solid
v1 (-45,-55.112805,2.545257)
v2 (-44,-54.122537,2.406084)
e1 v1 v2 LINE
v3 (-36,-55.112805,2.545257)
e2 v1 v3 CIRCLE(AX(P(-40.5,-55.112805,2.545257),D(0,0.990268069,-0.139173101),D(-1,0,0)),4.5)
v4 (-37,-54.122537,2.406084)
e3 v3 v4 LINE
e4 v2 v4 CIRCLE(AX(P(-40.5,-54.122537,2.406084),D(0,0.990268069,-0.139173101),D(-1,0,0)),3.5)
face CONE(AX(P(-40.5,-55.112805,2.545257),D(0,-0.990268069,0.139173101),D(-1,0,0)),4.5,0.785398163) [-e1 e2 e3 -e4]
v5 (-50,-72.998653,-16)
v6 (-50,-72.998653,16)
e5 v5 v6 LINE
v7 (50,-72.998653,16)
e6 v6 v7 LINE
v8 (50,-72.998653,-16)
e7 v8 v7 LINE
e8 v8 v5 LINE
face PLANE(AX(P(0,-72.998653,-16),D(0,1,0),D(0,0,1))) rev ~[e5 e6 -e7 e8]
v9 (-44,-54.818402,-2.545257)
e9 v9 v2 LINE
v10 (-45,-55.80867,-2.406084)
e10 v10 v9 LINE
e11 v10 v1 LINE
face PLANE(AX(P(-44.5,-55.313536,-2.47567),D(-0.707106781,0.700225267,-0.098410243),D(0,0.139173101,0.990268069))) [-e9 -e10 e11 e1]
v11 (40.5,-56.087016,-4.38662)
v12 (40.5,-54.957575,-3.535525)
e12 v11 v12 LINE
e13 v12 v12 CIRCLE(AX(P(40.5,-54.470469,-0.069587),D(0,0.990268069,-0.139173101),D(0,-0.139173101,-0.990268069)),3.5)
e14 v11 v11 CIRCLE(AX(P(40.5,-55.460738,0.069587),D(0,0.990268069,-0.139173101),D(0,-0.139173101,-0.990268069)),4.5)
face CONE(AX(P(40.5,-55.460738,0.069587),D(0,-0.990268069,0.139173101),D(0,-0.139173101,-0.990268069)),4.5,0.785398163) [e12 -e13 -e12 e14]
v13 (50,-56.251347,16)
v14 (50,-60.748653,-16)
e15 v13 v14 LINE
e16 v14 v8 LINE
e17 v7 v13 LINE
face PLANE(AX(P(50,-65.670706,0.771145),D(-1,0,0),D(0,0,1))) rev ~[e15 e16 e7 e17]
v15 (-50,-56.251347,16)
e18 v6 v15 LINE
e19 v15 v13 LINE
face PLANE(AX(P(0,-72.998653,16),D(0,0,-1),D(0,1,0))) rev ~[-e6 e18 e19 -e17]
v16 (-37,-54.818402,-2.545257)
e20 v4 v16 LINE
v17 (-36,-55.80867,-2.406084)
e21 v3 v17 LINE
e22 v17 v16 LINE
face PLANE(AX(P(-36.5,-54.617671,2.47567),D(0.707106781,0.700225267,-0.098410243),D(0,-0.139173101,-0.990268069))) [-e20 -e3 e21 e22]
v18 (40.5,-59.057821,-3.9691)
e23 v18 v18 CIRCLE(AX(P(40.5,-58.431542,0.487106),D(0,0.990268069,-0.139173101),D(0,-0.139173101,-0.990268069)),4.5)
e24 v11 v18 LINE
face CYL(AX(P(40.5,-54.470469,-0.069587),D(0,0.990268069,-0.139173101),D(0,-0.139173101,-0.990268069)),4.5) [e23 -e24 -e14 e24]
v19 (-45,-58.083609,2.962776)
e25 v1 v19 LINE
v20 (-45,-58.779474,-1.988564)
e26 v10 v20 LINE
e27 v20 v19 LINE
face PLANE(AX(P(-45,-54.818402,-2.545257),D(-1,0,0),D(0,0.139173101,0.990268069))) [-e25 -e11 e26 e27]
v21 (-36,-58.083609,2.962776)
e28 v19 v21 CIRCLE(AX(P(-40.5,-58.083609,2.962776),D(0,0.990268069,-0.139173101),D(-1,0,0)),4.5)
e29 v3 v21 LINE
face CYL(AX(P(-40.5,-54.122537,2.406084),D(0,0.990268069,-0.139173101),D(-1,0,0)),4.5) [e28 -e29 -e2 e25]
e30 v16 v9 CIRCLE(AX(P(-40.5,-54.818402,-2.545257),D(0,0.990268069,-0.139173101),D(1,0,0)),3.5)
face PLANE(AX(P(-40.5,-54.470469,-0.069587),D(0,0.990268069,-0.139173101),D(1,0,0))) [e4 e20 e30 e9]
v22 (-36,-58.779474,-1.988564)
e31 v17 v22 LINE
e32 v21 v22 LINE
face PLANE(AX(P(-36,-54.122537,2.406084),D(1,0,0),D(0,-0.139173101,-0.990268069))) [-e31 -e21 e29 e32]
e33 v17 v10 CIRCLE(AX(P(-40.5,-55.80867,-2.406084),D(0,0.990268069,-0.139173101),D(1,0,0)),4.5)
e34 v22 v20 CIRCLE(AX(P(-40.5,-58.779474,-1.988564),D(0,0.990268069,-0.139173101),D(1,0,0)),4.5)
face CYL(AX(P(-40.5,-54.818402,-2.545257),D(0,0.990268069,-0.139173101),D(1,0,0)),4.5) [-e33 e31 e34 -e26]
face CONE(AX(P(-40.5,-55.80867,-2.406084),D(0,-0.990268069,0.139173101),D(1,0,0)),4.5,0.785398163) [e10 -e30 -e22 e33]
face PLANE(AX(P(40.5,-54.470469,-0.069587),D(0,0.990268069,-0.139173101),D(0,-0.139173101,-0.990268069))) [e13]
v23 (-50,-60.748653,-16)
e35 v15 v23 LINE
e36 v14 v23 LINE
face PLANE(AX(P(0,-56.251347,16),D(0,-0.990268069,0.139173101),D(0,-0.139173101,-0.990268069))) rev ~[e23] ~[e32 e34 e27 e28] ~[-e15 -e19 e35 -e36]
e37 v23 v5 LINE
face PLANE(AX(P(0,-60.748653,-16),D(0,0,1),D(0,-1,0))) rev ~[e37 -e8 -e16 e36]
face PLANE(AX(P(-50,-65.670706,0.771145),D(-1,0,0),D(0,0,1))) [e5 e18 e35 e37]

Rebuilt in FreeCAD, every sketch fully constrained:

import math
import FreeCAD as App
import Part
import Sketcher
from FreeCAD import Vector
Q = App.Units.Quantity


def edges_at(feature, points):
    """Names of the edges that pass closest to the given points."""
    edges = feature.Shape.Edges
    near = lambda p: min(range(len(edges)), key=lambda i: edges[i].distToShape(Part.Vertex(*p))[0])
    return sorted({f"Edge{near(p) + 1}" for p in points})


def add_polygon(sketch, points):
    """Adds a closed chain of lines whose ends are joined by coincident constraints."""
    first, n = sketch.GeometryCount, len(points)
    for a, b in zip(points, points[1:] + points[:1]):
        sketch.addGeometry(Part.LineSegment(App.Vector(*a, 0), App.Vector(*b, 0)), False)
    for i in range(n):
        sketch.addConstraint(Sketcher.Constraint("Coincident", first + i, 2, first + (i + 1) % n, 1))

doc = App.newDocument("Part")
body = doc.addObject("PartDesign::Body", "Body")

# Sketch on XY plane
sketch1 = doc.addObject("Sketcher::SketchObject", "Sketch")
body.addObject(sketch1)
sketch1.AttachmentSupport = (doc.XY_Plane, [""])
sketch1.MapMode = "FlatFace"
sketch1.addGeometry([
    Part.LineSegment(Vector(-17, -66.863887, 0), Vector(-17, -12.990381, 0)),  # 0
    Part.ArcOfCircle(Part.Circle(Vector(-16.5, -12.990381, 0), Vector(0, 0, 1), 0.5), math.radians(38.213211), math.radians(180)),  # 1
    Part.ArcOfCircle(Part.Circle(Vector(0, 0, 0), Vector(0, 0, 1), 20.5), math.radians(-141.786789), math.radians(-38.213211)),  # 2
    Part.ArcOfCircle(Part.Circle(Vector(16.5, -12.990381, 0), Vector(0, 0, 1), 0.5), math.radians(0), math.radians(141.786789)),  # 3
    Part.LineSegment(Vector(17, -12.990381, 0), Vector(17, -66.863887, 0)),  # 4
    Part.LineSegment(Vector(17, -66.863887, 0), Vector(20.5, -66.863887, 0)),  # 5
    Part.LineSegment(Vector(20.5, -66.863887, 0), Vector(20.5, -12.990381, 0)),  # 6
    Part.ArcOfCircle(Part.Circle(Vector(16.5, -12.990381, 0), Vector(0, 0, 1), 4), math.radians(0), math.radians(141.786789)),  # 7
    Part.ArcOfCircle(Part.Circle(Vector(0, 0, 0), Vector(0, 0, 1), 17), math.radians(-141.786789), math.radians(-38.213211)),  # 8
    Part.ArcOfCircle(Part.Circle(Vector(-16.5, -12.990381, 0), Vector(0, 0, 1), 4), math.radians(38.213211), math.radians(180)),  # 9
    Part.LineSegment(Vector(-20.5, -12.990381, 0), Vector(-20.5, -66.863887, 0)),  # 10
    Part.LineSegment(Vector(-20.5, -66.863887, 0), Vector(-17, -66.863887, 0)),  # 11
], False)
sketch1.addConstraint([
    Sketcher.Constraint("Tangent", 0, 2, 1, 2),
    Sketcher.Constraint("Tangent", 1, 1, 2, 1),
    Sketcher.Constraint("Tangent", 2, 2, 3, 2),
    Sketcher.Constraint("Tangent", 3, 1, 4, 1),
    Sketcher.Constraint("Coincident", 4, 2, 5, 1),
    Sketcher.Constraint("Coincident", 5, 2, 6, 1),
    Sketcher.Constraint("Tangent", 6, 2, 7, 1),
    Sketcher.Constraint("Tangent", 7, 2, 8, 2),
    Sketcher.Constraint("Tangent", 8, 1, 9, 1),
    Sketcher.Constraint("Tangent", 9, 2, 10, 1),
    Sketcher.Constraint("Coincident", 10, 2, 11, 1),
    Sketcher.Constraint("Coincident", 11, 2, 0, 1),
    Sketcher.Constraint("Vertical", 0),
    Sketcher.Constraint("Vertical", 4),
    Sketcher.Constraint("Horizontal", 5),
    Sketcher.Constraint("Vertical", 6),
    Sketcher.Constraint("Vertical", 10),
    Sketcher.Constraint("Horizontal", 11),
    Sketcher.Constraint("Coincident", 2, 3, -1, 1),
    Sketcher.Constraint("Coincident", 8, 3, -1, 1),
    Sketcher.Constraint("Coincident", 7, 3, 3, 3),
    Sketcher.Constraint("Coincident", 9, 3, 1, 3),
    Sketcher.Constraint("Equal", 1, 3),
    Sketcher.Constraint("Symmetric", 5, 2, 10, 2, -2),
    Sketcher.Constraint("Radius", 7, 4.0),
    Sketcher.Constraint("Radius", 8, 17.0),
    Sketcher.Constraint("Radius", 1, 0.5),
    Sketcher.Constraint("DistanceX", 0, 2, -1, 1, 17.0),
    Sketcher.Constraint("DistanceY", 4, 2, 2, 2, 54.182801),
])
pad1 = doc.addObject("PartDesign::Pad", "Pad")
body.addObject(pad1)
pad1.Profile = sketch1
pad1.Length = 32
pad1.Midplane = True

# Sketch on YZ plane
sketch2 = doc.addObject("Sketcher::SketchObject", "Sketch001")
body.addObject(sketch2)
sketch2.AttachmentSupport = (doc.YZ_Plane, [""])
sketch2.MapMode = "FlatFace"
add_polygon(sketch2, [(-60.748653, -16), (-56.251347, 16), (-66.863887, 16), (-66.863887, -16)])  # lines 0-3
sketch2.addConstraint([
    Sketcher.Constraint("Horizontal", 1),
    Sketcher.Constraint("Vertical", 2),
    Sketcher.Constraint("Horizontal", 3),
    Sketcher.Constraint("DistanceY", 2, 2, 2, 1, 32.0),
    Sketcher.Constraint("Angle", 0, Q("82 deg")),
    Sketcher.Constraint("DistanceY", -1, 1, 0, 2, 16.0),
    Sketcher.Constraint("DistanceX", 1, 2, 1, 1, 10.61254),
    Sketcher.Constraint("DistanceX", 0, 2, -1, 1, 56.251347),
])
pocket1 = doc.addObject("PartDesign::Pocket", "Pocket")
body.addObject(pocket1)
pocket1.Profile = sketch2
pocket1.Length = 100
pocket1.Midplane = True

# Sketch on YZ plane
sketch3 = doc.addObject("Sketcher::SketchObject", "Sketch002")
body.addObject(sketch3)
sketch3.AttachmentSupport = (doc.YZ_Plane, [""])
sketch3.MapMode = "FlatFace"
sketch3.AttachmentOffset = App.Placement(Vector(0, 0, -20.5), App.Rotation())
add_polygon(sketch3, [(-60.748653, -16), (-56.251347, 16), (-52.71695, 16), (-57.214257, -16)])  # lines 0-3
sketch3.addConstraint([
    Sketcher.Constraint("Horizontal", 1),
    Sketcher.Constraint("Horizontal", 3),
    Sketcher.Constraint("Parallel", 0, 2),
    Sketcher.Constraint("Angle", 0, Q("82 deg")),
    Sketcher.Constraint("DistanceY", -1, 1, 0, 2, 16.0),
    Sketcher.Constraint("DistanceY", 2, 2, -1, 1, 16.0),
    Sketcher.Constraint("DistanceX", 1, 1, 1, 2, 3.534397),
    Sketcher.Constraint("DistanceX", 1, 2, -1, 1, 52.71695),
])
pad2 = doc.addObject("PartDesign::Pad", "Pad001")
body.addObject(pad2)
pad2.Profile = sketch3
pad2.Length = 28.5
pad2.Reversed = True
doc.recompute()

mirrored = doc.addObject("PartDesign::Mirrored", "Mirrored")
body.addObject(mirrored)
mirrored.Originals = [pad2]
mirrored.MirrorPlane = (doc.YZ_Plane, [""])
body.Tip = mirrored

# Sketch on an angled plane
sketch4 = doc.addObject("Sketcher::SketchObject", "Sketch003")
body.addObject(sketch4)
sketch4.Placement = App.Placement(Vector(0, -53.900966, 7.575287), App.Rotation(Vector(1, 0, 0), Vector(0, -0.139173101, -0.990268069), Vector(0, 0.990268069, -0.139173101), "ZXY"))
sketch4.addGeometry([
    Part.Circle(Vector(40.5, 7.649733, 0), Vector(0, 0, 1), 4.5),  # 0
    Part.LineSegment(Vector(-36, 5.149733, 0), Vector(-36, 10.149733, 0)),  # 1
    Part.ArcOfCircle(Part.Circle(Vector(-40.5, 10.149733, 0), Vector(0, 0, 1), 4.5), math.radians(0), math.radians(180)),  # 2
    Part.LineSegment(Vector(-45, 10.149733, 0), Vector(-45, 5.149733, 0)),  # 3
    Part.ArcOfCircle(Part.Circle(Vector(-40.5, 5.149733, 0), Vector(0, 0, 1), 4.5), math.radians(180), math.radians(360)),  # 4
], False)
sketch4.addConstraint([
    Sketcher.Constraint("Tangent", 1, 2, 2, 1),
    Sketcher.Constraint("Tangent", 2, 2, 3, 1),
    Sketcher.Constraint("Tangent", 3, 2, 4, 1),
    Sketcher.Constraint("Tangent", 4, 2, 1, 1),
    Sketcher.Constraint("Vertical", 1),
    Sketcher.Constraint("Vertical", 3),
    Sketcher.Constraint("Equal", 0, 2),
    Sketcher.Constraint("Diameter", 0, 9.0),
    Sketcher.Constraint("DistanceY", 1, 1, 1, 2, 5.0),
    Sketcher.Constraint("DistanceX", 1, 2, -1, 1, 36.0),
    Sketcher.Constraint("DistanceX", 2, 3, 0, 3, 81.0),
    Sketcher.Constraint("DistanceY", 0, 3, 2, 3, 2.5),
    Sketcher.Constraint("DistanceY", -1, 1, 0, 3, 7.649733),
])
pocket2 = doc.addObject("PartDesign::Pocket", "Pocket001")
body.addObject(pocket2)
pocket2.Profile = sketch4
pocket2.Length = 28.5

# Sketch on YZ plane
sketch5 = doc.addObject("Sketcher::SketchObject", "Sketch004")
body.addObject(sketch5)
sketch5.AttachmentSupport = (doc.YZ_Plane, [""])
sketch5.MapMode = "FlatFace"
add_polygon(sketch5, [(-56.251347, 16), (-60.748653, -16), (0, -16), (0, 16)])  # lines 0-3
sketch5.addConstraint([
    Sketcher.Constraint("Horizontal", 1),
    Sketcher.Constraint("Vertical", 2),
    Sketcher.Constraint("Horizontal", 3),
    Sketcher.Constraint("Symmetric", 1, 2, 2, 2, -1, 1),
    Sketcher.Constraint("DistanceY", 2, 1, 2, 2, 32.0),
    Sketcher.Constraint("Angle", 0, Q("-98 deg")),
    Sketcher.Constraint("DistanceX", 1, 1, 1, 2, 60.748653),
])
pocket3 = doc.addObject("PartDesign::Pocket", "Pocket002")
body.addObject(pocket3)
pocket3.Profile = sketch5
pocket3.Length = 120
pocket3.Midplane = True
body2 = doc.addObject("PartDesign::Body", "Body001")

# Sketch on YZ plane
sketch6 = doc.addObject("Sketcher::SketchObject", "Sketch005")
body2.addObject(sketch6)
sketch6.AttachmentSupport = (doc.getObject("YZ_Plane001"), [""])
sketch6.MapMode = "FlatFace"
add_polygon(sketch6, [(-60.748653, -16), (-56.251347, 16), (-72.998653, 16), (-72.998653, -16)])  # lines 0-3
sketch6.addConstraint([
    Sketcher.Constraint("Horizontal", 1),
    Sketcher.Constraint("Vertical", 2),
    Sketcher.Constraint("Horizontal", 3),
    Sketcher.Constraint("DistanceY", 2, 2, 2, 1, 32.0),
    Sketcher.Constraint("Angle", 0, Q("82 deg")),
    Sketcher.Constraint("DistanceY", -1, 1, 0, 2, 16.0),
    Sketcher.Constraint("DistanceX", 3, 1, 3, 2, 12.25),
    Sketcher.Constraint("DistanceX", 0, 2, -1, 1, 56.251347),
])
pad3 = doc.addObject("PartDesign::Pad", "Pad002")
body2.addObject(pad3)
pad3.Profile = sketch6
pad3.Length = 100
pad3.Midplane = True

# Sketch on an angled plane
sketch7 = doc.addObject("Sketcher::SketchObject", "Sketch006")
body2.addObject(sketch7)
sketch7.Placement = App.Placement(Vector(0, -53.405832, 7.5057), App.Rotation(Vector(1, 0, 0), Vector(0, -0.139173101, -0.990268069), Vector(0, 0.990268069, -0.139173101), "ZXY"))
sketch7.addGeometry([
    Part.Circle(Vector(40.5, 7.649733, 0), Vector(0, 0, 1), 4.5),  # 0
    Part.LineSegment(Vector(-36, 5.149733, 0), Vector(-36, 10.149733, 0)),  # 1
    Part.ArcOfCircle(Part.Circle(Vector(-40.5, 10.149733, 0), Vector(0, 0, 1), 4.5), math.radians(0), math.radians(180)),  # 2
    Part.LineSegment(Vector(-45, 10.149733, 0), Vector(-45, 5.149733, 0)),  # 3
    Part.ArcOfCircle(Part.Circle(Vector(-40.5, 5.149733, 0), Vector(0, 0, 1), 4.5), math.radians(180), math.radians(360)),  # 4
], False)
sketch7.addConstraint([
    Sketcher.Constraint("Tangent", 1, 2, 2, 1),
    Sketcher.Constraint("Tangent", 2, 2, 3, 1),
    Sketcher.Constraint("Tangent", 3, 2, 4, 1),
    Sketcher.Constraint("Tangent", 4, 2, 1, 1),
    Sketcher.Constraint("Vertical", 1),
    Sketcher.Constraint("Vertical", 3),
    Sketcher.Constraint("Equal", 0, 2),
    Sketcher.Constraint("Diameter", 0, 9.0),
    Sketcher.Constraint("DistanceY", 1, 1, 1, 2, 5.0),
    Sketcher.Constraint("DistanceX", 1, 2, -1, 1, 36.0),
    Sketcher.Constraint("DistanceX", 2, 3, 0, 3, 81.0),
    Sketcher.Constraint("DistanceY", 0, 3, 2, 3, 2.5),
    Sketcher.Constraint("DistanceY", -1, 1, 0, 3, 7.649733),
])
pad4 = doc.addObject("PartDesign::Pad", "Pad003")
body2.addObject(pad4)
pad4.Profile = sketch7
pad4.Length = 4
pad4.Reversed = True
doc.recompute()

chamfer = doc.addObject("PartDesign::Chamfer", "Chamfer")
body2.addObject(chamfer)
chamfer.Base = (pad4, edges_at(pad4, [
    (-40.5, -55.445, -7.001),
    (-45, -54.47, -0.07),
    (-40.5, -53.496, 6.862),
    (-36, -54.47, -0.07),
    (40.5, -53.844, 4.387),
]))
chamfer.Size = 1

doc.recompute()
